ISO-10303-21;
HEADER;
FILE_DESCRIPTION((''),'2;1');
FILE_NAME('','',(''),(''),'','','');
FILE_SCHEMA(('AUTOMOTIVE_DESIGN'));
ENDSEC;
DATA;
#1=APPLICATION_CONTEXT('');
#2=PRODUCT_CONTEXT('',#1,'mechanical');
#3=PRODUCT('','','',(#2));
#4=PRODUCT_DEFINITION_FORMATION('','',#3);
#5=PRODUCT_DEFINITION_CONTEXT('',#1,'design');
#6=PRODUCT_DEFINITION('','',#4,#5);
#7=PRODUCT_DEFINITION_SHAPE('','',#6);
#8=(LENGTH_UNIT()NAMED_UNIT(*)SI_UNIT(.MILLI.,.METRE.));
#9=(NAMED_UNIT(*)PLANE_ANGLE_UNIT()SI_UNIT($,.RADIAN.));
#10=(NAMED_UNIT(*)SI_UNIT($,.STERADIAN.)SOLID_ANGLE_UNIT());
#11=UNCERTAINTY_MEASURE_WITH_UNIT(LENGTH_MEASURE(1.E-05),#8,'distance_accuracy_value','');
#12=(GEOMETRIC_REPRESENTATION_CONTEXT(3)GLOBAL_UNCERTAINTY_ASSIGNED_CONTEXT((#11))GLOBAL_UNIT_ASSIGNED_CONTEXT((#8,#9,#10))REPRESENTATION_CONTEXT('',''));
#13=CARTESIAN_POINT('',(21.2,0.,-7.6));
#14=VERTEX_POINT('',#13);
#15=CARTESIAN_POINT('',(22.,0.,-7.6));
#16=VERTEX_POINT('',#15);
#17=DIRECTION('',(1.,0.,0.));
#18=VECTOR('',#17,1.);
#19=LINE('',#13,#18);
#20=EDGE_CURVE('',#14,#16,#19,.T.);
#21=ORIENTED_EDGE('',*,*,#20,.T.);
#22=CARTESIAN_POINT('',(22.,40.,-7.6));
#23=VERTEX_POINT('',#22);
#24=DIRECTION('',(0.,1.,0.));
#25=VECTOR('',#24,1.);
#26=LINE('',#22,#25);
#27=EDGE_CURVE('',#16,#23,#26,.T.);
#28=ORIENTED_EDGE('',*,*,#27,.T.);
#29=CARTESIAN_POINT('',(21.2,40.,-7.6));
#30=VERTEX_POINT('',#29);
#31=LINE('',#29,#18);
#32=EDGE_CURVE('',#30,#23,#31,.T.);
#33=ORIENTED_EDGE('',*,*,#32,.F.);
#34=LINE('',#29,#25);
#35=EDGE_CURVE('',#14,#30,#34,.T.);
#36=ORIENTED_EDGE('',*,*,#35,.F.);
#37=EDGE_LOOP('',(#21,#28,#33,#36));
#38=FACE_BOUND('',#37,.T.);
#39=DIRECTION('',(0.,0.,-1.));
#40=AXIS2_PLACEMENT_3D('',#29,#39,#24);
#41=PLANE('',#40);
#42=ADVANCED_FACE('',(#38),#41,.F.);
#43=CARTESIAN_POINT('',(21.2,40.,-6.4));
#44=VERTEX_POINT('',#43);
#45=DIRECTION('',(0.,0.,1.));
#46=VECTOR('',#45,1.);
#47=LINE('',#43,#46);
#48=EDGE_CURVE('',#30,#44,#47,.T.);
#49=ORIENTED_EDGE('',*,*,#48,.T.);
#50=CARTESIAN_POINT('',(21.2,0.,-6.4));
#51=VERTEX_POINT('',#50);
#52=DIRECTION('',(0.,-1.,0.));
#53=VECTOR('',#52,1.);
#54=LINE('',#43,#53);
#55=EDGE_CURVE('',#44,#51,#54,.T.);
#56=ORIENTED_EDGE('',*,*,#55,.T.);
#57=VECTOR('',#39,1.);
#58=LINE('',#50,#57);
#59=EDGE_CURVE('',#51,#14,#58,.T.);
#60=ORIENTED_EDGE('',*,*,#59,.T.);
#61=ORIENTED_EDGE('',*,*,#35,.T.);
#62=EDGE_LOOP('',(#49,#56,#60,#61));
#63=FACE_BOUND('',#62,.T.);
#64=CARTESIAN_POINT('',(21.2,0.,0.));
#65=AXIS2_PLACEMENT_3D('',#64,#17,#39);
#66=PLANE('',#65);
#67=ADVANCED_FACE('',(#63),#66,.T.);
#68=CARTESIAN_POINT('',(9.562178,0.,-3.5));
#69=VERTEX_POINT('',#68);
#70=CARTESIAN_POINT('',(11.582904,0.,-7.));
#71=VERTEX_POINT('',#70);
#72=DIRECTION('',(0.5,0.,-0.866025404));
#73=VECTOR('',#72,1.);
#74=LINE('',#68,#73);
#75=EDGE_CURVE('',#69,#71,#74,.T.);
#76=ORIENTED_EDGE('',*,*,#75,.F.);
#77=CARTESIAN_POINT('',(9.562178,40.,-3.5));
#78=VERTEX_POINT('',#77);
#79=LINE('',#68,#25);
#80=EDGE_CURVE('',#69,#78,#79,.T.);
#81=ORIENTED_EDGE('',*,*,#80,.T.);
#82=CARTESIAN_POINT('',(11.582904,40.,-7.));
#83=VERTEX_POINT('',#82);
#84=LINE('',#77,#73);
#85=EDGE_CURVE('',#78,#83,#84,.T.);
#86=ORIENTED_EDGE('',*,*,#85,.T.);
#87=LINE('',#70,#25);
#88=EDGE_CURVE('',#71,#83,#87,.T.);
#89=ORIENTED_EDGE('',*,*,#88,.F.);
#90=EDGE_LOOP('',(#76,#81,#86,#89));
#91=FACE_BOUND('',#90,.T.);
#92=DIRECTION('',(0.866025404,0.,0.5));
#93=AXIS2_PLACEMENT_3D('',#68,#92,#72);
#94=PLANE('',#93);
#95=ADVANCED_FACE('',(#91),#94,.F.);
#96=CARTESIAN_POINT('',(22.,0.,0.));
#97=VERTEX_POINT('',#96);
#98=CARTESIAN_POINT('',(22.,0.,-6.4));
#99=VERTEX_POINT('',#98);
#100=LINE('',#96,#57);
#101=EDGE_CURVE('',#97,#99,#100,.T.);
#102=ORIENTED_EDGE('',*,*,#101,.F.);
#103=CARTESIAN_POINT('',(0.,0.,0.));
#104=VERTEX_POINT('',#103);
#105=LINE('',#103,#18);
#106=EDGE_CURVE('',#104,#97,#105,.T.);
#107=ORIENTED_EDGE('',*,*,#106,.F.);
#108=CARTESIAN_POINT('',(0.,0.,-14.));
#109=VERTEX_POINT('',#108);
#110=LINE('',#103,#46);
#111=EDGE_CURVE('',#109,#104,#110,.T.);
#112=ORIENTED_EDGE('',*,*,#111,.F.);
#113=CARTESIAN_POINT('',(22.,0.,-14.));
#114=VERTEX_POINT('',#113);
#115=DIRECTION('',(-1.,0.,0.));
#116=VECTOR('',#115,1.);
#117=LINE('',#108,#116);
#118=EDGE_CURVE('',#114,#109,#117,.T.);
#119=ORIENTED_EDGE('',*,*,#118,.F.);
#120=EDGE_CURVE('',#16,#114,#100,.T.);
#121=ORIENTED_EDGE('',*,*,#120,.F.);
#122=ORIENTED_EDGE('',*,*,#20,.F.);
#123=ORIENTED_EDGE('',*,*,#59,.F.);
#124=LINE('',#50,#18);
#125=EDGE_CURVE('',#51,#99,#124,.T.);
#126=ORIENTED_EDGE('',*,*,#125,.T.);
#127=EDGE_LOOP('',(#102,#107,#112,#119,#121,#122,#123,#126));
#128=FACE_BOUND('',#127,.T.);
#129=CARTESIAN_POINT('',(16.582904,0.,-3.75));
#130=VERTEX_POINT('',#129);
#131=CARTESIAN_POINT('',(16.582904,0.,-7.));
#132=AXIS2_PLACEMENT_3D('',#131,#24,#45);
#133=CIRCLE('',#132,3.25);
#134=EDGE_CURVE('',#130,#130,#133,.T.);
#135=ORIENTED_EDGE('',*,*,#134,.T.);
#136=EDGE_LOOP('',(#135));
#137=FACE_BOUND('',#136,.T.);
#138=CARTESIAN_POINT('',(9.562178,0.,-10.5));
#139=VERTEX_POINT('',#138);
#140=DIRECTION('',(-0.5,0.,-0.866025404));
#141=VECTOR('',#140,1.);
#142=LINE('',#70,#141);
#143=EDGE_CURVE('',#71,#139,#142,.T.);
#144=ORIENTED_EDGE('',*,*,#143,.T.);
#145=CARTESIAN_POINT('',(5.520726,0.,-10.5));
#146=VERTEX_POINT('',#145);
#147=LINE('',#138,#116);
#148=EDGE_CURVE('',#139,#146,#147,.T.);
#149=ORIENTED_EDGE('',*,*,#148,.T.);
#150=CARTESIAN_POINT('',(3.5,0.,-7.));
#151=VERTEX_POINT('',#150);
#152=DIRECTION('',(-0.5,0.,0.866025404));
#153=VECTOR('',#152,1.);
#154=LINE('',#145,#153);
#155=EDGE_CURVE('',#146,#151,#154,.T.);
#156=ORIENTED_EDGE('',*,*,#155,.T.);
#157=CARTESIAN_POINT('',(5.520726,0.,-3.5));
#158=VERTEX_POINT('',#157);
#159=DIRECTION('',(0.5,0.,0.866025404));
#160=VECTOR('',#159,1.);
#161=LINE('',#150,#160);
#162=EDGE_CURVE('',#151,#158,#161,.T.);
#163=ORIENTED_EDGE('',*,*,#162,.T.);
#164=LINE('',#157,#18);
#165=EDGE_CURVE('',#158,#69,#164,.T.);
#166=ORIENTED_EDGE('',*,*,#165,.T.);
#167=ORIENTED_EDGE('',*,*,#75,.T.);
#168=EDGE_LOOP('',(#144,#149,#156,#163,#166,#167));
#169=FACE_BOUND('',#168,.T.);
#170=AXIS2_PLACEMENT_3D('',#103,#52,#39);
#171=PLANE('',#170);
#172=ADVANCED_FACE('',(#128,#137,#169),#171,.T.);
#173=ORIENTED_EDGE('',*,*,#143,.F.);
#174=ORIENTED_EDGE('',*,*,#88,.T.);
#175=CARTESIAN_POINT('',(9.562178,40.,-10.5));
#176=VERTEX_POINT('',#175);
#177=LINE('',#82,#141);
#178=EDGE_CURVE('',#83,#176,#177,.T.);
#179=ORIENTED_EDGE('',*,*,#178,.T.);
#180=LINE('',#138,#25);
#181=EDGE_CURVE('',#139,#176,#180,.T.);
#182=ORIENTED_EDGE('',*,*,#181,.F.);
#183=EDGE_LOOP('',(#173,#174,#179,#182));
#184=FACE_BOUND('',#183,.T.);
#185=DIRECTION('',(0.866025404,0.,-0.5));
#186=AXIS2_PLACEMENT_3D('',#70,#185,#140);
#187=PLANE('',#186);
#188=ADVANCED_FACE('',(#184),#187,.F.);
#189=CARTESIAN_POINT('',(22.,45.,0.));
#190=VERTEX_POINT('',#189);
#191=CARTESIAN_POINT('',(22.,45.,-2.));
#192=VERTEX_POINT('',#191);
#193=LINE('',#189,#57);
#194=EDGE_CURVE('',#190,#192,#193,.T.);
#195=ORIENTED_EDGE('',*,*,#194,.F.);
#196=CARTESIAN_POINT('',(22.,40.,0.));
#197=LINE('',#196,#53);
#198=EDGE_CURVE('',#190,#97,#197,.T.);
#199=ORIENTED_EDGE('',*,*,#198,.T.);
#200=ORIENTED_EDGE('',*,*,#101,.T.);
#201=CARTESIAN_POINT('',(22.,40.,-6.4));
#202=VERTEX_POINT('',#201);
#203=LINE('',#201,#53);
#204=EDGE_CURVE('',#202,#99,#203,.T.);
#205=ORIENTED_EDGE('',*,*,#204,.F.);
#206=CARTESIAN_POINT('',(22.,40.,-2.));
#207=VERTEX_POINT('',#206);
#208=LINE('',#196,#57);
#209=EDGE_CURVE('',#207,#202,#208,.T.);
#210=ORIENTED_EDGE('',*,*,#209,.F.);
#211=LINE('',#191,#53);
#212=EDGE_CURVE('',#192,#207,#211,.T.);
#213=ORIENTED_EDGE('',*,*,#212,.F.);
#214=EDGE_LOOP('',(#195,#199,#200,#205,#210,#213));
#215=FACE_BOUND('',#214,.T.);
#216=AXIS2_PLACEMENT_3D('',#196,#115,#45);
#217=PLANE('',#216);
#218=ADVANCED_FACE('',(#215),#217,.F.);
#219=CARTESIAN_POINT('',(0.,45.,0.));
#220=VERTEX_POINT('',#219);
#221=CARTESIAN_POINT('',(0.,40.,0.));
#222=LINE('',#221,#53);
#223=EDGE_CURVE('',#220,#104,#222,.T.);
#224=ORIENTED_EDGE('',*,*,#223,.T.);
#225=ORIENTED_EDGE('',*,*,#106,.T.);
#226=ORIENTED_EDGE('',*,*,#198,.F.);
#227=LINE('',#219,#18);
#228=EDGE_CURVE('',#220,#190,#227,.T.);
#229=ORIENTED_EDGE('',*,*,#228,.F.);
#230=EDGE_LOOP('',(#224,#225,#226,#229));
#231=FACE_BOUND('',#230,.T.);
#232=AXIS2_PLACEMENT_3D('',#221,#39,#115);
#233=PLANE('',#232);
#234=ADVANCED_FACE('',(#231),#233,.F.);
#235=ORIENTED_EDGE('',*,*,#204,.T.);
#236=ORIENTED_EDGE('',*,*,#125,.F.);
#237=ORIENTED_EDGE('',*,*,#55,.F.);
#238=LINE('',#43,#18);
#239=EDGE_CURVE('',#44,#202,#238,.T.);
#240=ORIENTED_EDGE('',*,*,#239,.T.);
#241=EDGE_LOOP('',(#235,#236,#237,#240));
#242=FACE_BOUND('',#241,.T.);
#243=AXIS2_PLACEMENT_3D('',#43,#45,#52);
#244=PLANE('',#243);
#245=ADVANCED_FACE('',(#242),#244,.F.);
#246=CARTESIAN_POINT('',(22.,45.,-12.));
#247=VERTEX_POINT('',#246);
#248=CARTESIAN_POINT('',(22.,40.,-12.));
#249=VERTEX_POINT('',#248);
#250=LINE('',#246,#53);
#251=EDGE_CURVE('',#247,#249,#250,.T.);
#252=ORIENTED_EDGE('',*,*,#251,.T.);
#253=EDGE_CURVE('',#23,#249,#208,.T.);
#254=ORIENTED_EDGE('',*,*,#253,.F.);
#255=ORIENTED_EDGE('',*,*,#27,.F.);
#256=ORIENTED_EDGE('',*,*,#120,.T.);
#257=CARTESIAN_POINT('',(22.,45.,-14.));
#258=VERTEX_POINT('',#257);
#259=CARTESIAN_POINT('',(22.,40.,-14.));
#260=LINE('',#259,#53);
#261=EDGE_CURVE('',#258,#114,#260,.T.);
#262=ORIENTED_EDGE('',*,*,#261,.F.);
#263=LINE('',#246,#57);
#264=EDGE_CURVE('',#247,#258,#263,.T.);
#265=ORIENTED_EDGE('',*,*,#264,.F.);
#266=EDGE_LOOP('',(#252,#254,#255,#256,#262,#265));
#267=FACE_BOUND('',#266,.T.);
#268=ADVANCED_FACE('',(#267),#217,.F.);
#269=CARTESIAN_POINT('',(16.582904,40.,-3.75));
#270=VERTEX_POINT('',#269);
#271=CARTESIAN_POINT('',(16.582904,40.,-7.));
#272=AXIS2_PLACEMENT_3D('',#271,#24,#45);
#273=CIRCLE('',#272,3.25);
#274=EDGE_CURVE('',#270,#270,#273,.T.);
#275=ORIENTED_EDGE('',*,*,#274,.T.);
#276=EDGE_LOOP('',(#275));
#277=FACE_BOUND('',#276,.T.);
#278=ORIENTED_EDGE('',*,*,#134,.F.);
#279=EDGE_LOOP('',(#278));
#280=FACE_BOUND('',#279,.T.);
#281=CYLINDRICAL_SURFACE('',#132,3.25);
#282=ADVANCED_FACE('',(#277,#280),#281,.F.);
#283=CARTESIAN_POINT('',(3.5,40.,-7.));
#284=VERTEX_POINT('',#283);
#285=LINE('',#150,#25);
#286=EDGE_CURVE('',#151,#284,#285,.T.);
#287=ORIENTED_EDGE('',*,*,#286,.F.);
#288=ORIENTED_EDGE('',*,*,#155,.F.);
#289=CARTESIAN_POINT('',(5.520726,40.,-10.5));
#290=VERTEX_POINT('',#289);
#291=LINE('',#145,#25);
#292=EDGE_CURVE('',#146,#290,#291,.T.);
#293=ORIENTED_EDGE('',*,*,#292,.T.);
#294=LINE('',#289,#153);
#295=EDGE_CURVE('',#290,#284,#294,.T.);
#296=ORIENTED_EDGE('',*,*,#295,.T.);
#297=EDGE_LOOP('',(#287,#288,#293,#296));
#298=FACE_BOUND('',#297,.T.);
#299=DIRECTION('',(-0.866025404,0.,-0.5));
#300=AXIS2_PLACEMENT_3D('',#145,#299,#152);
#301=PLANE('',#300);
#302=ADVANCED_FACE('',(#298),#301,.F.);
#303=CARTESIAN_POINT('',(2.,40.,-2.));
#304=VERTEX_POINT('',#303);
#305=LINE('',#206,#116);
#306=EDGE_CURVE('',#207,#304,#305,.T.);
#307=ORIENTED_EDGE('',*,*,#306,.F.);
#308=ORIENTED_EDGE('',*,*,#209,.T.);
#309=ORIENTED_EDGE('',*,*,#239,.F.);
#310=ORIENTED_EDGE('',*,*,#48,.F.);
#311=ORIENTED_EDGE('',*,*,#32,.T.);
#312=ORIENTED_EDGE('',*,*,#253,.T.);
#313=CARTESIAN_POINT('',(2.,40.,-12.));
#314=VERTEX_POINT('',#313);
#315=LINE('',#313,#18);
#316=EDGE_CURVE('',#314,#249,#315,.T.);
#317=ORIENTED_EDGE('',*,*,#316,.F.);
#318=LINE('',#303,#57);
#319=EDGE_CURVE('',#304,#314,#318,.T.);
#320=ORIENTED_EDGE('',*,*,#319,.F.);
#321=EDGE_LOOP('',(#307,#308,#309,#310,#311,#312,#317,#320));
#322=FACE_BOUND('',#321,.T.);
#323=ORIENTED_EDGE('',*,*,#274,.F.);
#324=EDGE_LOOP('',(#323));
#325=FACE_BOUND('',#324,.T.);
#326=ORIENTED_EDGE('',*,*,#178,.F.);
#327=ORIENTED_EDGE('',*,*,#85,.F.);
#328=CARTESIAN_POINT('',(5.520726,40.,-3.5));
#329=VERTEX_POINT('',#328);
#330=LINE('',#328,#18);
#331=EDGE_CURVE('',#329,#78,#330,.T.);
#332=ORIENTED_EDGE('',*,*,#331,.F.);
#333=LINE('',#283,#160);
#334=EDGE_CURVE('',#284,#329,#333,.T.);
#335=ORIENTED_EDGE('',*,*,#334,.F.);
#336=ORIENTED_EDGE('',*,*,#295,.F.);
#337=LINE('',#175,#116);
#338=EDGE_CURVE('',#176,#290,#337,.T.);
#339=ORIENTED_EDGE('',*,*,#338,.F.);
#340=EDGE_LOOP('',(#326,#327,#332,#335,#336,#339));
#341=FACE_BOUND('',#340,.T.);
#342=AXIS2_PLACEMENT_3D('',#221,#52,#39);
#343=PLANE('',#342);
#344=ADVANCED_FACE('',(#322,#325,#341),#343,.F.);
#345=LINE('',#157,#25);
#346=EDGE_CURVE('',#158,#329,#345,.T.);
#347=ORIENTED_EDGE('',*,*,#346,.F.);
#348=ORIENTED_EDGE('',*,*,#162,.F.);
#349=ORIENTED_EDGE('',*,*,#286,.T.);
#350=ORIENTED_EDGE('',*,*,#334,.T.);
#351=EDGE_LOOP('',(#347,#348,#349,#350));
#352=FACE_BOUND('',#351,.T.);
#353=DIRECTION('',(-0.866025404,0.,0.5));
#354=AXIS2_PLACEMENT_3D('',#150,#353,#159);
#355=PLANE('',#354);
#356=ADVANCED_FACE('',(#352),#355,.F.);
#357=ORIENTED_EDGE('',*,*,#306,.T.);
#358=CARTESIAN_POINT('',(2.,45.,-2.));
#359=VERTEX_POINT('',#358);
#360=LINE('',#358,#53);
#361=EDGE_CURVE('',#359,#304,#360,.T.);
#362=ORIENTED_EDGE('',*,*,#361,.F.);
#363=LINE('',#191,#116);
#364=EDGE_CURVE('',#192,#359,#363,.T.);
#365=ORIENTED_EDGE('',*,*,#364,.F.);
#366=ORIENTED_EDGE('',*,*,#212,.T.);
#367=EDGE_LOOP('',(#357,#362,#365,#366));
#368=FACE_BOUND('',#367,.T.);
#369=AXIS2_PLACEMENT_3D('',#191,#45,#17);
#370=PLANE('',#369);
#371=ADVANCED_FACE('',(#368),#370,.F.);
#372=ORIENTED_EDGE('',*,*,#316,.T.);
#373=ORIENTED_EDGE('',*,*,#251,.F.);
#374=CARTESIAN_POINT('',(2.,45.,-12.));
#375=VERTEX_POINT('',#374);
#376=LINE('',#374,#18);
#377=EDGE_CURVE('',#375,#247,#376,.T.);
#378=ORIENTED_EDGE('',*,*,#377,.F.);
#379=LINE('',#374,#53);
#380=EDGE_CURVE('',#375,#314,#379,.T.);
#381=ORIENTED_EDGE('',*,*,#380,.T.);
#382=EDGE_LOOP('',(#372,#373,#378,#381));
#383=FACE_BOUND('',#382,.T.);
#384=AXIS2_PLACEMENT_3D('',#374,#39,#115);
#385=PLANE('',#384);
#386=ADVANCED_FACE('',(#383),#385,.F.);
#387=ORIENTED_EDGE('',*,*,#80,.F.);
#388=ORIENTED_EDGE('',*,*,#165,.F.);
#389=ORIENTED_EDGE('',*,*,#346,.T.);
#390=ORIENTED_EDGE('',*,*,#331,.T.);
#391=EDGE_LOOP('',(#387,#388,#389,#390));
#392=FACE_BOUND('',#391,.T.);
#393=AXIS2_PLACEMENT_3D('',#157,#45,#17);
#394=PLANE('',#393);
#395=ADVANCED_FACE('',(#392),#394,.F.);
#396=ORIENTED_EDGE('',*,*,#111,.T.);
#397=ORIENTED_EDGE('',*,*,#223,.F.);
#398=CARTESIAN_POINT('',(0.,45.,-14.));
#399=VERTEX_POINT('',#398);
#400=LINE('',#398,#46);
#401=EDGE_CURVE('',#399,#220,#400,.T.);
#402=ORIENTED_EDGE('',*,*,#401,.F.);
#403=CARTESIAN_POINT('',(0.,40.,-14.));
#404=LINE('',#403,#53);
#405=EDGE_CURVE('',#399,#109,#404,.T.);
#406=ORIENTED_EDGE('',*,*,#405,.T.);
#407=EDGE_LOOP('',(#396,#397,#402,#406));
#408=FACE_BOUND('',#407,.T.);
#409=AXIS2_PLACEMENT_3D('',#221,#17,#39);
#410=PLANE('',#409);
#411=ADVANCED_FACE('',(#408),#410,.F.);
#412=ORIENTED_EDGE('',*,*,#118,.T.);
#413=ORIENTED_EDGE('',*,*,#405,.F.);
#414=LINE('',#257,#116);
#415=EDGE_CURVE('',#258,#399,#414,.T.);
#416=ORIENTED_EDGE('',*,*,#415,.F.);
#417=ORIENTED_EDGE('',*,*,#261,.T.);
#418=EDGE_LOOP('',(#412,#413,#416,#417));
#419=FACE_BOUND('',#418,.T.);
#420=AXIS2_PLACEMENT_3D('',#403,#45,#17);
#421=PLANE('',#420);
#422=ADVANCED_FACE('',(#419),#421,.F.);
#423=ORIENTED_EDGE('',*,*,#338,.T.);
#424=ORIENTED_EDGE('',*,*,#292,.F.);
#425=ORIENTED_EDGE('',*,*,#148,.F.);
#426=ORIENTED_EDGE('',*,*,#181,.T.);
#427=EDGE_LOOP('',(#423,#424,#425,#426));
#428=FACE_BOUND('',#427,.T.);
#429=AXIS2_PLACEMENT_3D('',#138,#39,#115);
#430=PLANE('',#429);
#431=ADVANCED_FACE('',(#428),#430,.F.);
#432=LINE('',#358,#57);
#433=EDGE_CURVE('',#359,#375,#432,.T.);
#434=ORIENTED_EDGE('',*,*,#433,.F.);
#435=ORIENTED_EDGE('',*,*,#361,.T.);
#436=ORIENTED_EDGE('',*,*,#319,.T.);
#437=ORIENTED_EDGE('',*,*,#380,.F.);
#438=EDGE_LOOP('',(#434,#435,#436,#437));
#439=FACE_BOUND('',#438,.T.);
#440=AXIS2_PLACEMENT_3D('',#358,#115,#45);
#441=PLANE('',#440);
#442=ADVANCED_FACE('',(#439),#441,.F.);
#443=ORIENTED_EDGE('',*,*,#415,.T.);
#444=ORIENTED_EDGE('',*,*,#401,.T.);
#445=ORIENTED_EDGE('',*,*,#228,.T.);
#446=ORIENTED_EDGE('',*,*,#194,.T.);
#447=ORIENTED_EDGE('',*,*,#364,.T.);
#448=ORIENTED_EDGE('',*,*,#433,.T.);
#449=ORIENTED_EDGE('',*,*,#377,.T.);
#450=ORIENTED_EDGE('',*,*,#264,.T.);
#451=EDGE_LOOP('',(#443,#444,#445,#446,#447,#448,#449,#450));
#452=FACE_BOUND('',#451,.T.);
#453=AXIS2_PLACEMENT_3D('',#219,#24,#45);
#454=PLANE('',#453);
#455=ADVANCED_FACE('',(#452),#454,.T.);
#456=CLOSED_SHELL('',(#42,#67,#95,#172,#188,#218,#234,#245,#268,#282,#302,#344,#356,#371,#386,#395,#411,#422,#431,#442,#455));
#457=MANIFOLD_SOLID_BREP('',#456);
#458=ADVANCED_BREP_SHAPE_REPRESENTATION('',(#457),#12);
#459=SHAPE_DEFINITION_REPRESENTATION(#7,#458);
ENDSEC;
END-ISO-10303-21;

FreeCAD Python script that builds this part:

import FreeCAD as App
import Part
import Sketcher
Q = App.Units.Quantity


def add_polygon(sketch, points):
    """Adds a closed chain of lines whose ends are joined by coincident constraints."""
    first, n = sketch.GeometryCount, len(points)
    for a, b in zip(points, points[1:] + points[:1]):
        sketch.addGeometry(Part.LineSegment(App.Vector(*a, 0), App.Vector(*b, 0)), False)
    for i in range(n):
        sketch.addConstraint(Sketcher.Constraint("Coincident", first + i, 2, first + (i + 1) % n, 1))

doc = App.newDocument("Part")
body = doc.addObject("PartDesign::Body", "Body")

sketch1 = body.newObject("Sketcher::SketchObject", "Sketch")
sketch1.AttachmentSupport = (doc.getObject("XZ_Plane"), [""])
sketch1.MapMode = "FlatFace"
add_polygon(sketch1, [(0, -14), (0, 0), (22, 0), (22, -14)])
sketch1.addConstraint([
    Sketcher.Constraint("Vertical", 0),
    Sketcher.Constraint("Horizontal", 1),
    Sketcher.Constraint("Vertical", 2),
    Sketcher.Constraint("Horizontal", 3),
    Sketcher.Constraint("Coincident", 0, 2, -1, 1),
    Sketcher.Constraint("DistanceX", 1, 1, 1, 2, Q("22 mm")),
    Sketcher.Constraint("DistanceY", 0, 1, 0, 2, Q("14 mm")),
])
pad1 = body.newObject("PartDesign::Pad", "Pad")
pad1.Profile = sketch1
pad1.Length = 40
pad1.Reversed = True

sketch2 = body.newObject("Sketcher::SketchObject", "Sketch001")
sketch2.AttachmentSupport = (doc.getObject("XZ_Plane"), [""])
sketch2.MapMode = "FlatFace"
sketch2.AttachmentOffset = App.Placement(App.Vector(0, 0, -40), App.Rotation())
add_polygon(sketch2, [(22, 0), (22, -2), (2, -2), (2, -12), (22, -12), (22, -14), (0, -14), (0, 0)])
sketch2.addConstraint([
    Sketcher.Constraint("Vertical", 0),
    Sketcher.Constraint("Horizontal", 1),
    Sketcher.Constraint("Vertical", 2),
    Sketcher.Constraint("Horizontal", 3),
    Sketcher.Constraint("Vertical", 4),
    Sketcher.Constraint("Horizontal", 5),
    Sketcher.Constraint("Vertical", 6),
    Sketcher.Constraint("Horizontal", 7),
    Sketcher.Constraint("Coincident", 6, 2, -1, 1),
    Sketcher.Constraint("Vertical", 0, 2, 3, 2),
    Sketcher.Constraint("Equal", 0, 4),
    Sketcher.Constraint("DistanceX", 1, 2, 1, 1, Q("20 mm")),
    Sketcher.Constraint("DistanceX", 5, 2, 5, 1, Q("22 mm")),
    Sketcher.Constraint("DistanceY", 0, 2, 0, 1, Q("2 mm")),
    Sketcher.Constraint("DistanceY", 2, 2, 2, 1, Q("10 mm")),
])
pad2 = body.newObject("PartDesign::Pad", "Pad001")
pad2.Profile = sketch2
pad2.Length = 5
pad2.Reversed = True

sketch3 = body.newObject("Sketcher::SketchObject", "Sketch002")
sketch3.AttachmentSupport = (doc.getObject("XZ_Plane"), [""])
sketch3.MapMode = "FlatFace"
sketch3.AttachmentOffset = App.Placement(App.Vector(0, 0, -40), App.Rotation())
sketch3.addGeometry(Part.Circle(App.Vector(16.6, -7, 0), App.Vector(0, 0, 1), 3.2), False)
add_polygon(sketch3, [(11.6, -7), (9.6, -10.5), (5.5, -10.5), (3.5, -7), (5.5, -3.5), (9.6, -3.5)])
sketch3.addConstraint([
    Sketcher.Constraint("Horizontal", 2),
    Sketcher.Constraint("Horizontal", 5),
    Sketcher.Constraint("Parallel", 1, 4),
    Sketcher.Constraint("Parallel", 3, 6),
    Sketcher.Constraint("Horizontal", 0, 3, 3, 2),
    Sketcher.Constraint("Horizontal", 3, 2, 6, 2),
    Sketcher.Constraint("Vertical", 2, 2, 4, 2),
    Sketcher.Constraint("Vertical", 1, 2, 5, 2),
    Sketcher.Constraint("Diameter", 0, Q("6.5 mm")),
    Sketcher.Constraint("Angle", 1, Q("-120 deg")),
    Sketcher.Constraint("DistanceY", 0, 3, -1, 1, Q("7 mm")),
    Sketcher.Constraint("DistanceY", 2, 2, 4, 2, Q("7 mm")),
    Sketcher.Constraint("DistanceX", 6, 2, 0, 3, Q("5 mm")),
    Sketcher.Constraint("DistanceX", -1, 1, 3, 2, Q("3.5 mm")),
    Sketcher.Constraint("DistanceX", 2, 2, 2, 1, Q("4.041452 mm")),
])
pocket1 = body.newObject("PartDesign::Pocket", "Pocket")
pocket1.Profile = sketch3
pocket1.Type = "ThroughAll"
pocket1.Reversed = True

sketch4 = body.newObject("Sketcher::SketchObject", "Sketch003")
sketch4.AttachmentSupport = (doc.getObject("YZ_Plane"), [""])
sketch4.MapMode = "FlatFace"
sketch4.AttachmentOffset = App.Placement(App.Vector(0, 0, 22), App.Rotation())
add_polygon(sketch4, [(40, -6.4), (0, -6.4), (0, -7.6), (40, -7.6)])
sketch4.addConstraint([
    Sketcher.Constraint("Horizontal", 0),
    Sketcher.Constraint("Vertical", 1),
    Sketcher.Constraint("Horizontal", 2),
    Sketcher.Constraint("Vertical", 3),
    Sketcher.Constraint("PointOnObject", 0, 2, -2),
    Sketcher.Constraint("DistanceX", 0, 2, 0, 1, Q("40 mm")),
    Sketcher.Constraint("DistanceY", 1, 2, 1, 1, Q("1.2 mm")),
    Sketcher.Constraint("DistanceY", 0, 2, -1, 1, Q("6.4 mm")),
])
pocket2 = body.newObject("PartDesign::Pocket", "Pocket001")
pocket2.Profile = sketch4
pocket2.Length = 0.8

doc.recompute()
